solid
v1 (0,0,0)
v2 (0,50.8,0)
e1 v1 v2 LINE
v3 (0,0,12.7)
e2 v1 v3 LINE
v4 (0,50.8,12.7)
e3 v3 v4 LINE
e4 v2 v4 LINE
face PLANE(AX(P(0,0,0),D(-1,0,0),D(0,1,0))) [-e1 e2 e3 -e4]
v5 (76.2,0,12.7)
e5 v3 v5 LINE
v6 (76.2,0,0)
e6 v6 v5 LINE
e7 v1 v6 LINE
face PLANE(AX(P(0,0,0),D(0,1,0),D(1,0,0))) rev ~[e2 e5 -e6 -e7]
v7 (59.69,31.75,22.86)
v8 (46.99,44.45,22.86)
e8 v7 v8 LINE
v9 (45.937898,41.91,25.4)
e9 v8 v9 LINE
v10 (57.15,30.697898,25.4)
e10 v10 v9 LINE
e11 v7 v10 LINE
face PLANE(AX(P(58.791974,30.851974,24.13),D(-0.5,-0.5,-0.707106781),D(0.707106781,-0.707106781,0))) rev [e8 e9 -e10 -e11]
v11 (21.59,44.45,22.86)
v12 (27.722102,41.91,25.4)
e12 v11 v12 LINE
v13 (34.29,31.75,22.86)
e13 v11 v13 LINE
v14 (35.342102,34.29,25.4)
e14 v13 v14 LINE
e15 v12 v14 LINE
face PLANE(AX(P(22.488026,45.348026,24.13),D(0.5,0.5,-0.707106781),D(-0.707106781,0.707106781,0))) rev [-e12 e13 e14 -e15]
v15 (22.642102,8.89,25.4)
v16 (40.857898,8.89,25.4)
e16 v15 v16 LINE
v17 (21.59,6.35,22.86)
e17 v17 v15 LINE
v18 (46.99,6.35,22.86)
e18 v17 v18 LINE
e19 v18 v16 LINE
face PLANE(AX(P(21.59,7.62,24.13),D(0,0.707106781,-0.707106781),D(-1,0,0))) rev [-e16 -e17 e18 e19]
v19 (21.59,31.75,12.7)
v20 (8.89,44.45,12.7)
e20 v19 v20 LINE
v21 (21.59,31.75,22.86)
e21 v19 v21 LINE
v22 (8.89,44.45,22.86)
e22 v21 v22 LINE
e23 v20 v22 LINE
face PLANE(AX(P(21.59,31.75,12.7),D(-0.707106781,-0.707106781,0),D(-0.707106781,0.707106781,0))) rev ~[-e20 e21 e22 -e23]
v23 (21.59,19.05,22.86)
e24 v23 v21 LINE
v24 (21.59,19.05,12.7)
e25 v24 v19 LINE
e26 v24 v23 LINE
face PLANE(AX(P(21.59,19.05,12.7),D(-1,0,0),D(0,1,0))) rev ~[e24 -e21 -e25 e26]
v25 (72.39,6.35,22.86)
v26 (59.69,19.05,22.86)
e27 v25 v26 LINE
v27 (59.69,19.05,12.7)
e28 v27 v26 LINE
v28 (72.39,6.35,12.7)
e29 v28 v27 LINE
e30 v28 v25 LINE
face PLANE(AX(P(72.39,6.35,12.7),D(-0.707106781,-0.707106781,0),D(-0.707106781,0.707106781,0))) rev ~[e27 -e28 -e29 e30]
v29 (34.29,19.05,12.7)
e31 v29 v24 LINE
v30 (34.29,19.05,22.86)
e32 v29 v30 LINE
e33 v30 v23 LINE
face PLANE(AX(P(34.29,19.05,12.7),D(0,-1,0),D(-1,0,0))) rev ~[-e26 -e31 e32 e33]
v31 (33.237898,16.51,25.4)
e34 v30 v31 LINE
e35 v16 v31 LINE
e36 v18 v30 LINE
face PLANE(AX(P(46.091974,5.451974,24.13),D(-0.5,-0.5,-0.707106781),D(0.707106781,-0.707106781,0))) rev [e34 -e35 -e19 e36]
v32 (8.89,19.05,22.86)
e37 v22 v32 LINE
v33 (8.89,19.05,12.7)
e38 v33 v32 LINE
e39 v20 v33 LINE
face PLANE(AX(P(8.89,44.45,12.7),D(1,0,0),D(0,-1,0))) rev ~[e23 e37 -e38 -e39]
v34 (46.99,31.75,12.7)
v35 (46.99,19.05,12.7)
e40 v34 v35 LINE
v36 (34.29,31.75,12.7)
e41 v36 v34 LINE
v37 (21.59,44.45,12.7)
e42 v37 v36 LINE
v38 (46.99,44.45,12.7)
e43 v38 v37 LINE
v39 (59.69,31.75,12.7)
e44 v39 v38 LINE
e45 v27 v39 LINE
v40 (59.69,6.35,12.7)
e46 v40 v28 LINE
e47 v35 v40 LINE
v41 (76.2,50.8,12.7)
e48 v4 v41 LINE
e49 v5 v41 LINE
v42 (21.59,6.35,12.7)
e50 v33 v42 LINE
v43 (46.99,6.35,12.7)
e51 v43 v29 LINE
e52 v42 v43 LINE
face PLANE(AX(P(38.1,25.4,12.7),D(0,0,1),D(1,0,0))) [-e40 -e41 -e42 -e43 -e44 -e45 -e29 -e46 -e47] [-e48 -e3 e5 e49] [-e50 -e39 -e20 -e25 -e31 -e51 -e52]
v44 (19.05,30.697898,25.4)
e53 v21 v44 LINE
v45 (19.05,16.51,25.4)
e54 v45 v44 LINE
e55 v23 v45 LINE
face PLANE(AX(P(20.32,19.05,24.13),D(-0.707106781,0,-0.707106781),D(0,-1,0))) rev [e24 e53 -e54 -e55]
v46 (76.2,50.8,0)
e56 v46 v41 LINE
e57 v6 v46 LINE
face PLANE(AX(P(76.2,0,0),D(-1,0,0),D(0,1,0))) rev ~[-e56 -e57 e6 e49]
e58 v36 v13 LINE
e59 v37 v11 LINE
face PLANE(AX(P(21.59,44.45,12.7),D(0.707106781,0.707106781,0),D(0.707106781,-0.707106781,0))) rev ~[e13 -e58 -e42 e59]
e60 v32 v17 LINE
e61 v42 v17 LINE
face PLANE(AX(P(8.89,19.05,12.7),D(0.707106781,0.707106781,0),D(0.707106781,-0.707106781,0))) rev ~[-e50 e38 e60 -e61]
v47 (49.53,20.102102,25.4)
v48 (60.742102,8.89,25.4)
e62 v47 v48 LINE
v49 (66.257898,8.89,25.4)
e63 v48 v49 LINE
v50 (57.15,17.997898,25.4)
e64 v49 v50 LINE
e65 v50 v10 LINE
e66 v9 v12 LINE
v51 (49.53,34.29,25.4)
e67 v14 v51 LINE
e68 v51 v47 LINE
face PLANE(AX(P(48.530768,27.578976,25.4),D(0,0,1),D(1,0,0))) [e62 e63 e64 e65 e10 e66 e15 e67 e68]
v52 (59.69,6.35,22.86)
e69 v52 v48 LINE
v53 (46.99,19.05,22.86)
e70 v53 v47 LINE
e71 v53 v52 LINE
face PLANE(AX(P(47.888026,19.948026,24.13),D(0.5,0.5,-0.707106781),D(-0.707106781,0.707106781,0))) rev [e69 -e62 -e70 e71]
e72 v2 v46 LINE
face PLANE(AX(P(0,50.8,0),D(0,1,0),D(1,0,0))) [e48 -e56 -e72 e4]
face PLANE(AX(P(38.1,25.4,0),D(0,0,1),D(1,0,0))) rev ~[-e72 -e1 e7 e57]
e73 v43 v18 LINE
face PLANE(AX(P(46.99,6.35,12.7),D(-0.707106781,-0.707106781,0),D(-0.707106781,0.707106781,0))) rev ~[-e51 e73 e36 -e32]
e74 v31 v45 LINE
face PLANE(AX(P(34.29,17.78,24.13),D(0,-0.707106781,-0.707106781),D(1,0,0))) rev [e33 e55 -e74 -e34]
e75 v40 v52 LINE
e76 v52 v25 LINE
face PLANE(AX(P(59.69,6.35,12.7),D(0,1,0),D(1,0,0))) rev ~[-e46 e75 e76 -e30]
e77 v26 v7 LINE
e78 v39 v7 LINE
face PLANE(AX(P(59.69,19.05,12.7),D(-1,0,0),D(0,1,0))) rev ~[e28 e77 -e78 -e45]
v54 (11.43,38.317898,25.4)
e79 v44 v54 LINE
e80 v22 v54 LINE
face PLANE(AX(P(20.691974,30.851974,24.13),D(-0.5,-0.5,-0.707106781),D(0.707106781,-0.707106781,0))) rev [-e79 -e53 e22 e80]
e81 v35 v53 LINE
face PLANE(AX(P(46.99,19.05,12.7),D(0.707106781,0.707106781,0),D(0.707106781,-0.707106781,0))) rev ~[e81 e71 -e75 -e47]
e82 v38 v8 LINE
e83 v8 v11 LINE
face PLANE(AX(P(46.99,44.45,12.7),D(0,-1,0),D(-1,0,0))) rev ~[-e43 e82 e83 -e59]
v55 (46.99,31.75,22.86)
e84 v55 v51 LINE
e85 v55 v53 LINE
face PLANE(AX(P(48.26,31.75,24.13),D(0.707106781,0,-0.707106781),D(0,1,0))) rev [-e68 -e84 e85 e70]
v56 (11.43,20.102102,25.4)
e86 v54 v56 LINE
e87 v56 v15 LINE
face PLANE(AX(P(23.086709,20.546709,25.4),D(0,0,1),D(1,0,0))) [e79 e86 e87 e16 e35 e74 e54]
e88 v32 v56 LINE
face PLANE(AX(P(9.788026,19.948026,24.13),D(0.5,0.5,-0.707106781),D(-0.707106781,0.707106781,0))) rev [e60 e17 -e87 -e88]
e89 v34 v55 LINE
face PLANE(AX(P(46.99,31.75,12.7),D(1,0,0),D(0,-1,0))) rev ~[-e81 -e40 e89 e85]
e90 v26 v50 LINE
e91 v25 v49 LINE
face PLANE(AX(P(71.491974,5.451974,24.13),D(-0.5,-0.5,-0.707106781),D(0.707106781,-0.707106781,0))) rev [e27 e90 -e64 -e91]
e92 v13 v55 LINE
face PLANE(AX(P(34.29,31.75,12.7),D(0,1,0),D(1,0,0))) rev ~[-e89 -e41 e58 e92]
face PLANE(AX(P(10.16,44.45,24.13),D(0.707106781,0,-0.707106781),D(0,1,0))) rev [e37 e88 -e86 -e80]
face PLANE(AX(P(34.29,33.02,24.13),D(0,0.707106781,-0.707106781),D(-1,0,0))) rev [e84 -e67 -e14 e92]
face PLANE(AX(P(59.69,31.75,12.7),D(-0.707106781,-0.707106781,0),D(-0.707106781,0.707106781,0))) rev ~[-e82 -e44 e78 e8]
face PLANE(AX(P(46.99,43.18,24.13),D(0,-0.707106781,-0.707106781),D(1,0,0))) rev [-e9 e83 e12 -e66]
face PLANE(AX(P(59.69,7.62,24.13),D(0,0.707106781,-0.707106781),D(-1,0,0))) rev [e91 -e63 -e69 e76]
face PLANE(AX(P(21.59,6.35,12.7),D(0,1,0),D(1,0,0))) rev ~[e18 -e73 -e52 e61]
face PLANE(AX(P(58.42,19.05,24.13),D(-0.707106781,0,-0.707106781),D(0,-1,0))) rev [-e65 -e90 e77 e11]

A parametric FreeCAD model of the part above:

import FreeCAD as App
import Part
import Sketcher
from FreeCAD import Vector
Q = App.Units.Quantity


def edges_at(feature, points):
    """Names of the edges that pass closest to the given points."""
    edges = feature.Shape.Edges
    near = lambda p: min(range(len(edges)), key=lambda i: edges[i].distToShape(Part.Vertex(*p))[0])
    return sorted({f"Edge{near(p) + 1}" for p in points})

doc = App.newDocument("Part")
body = doc.addObject("PartDesign::Body", "Body")

sketch1 = doc.addObject("Sketcher::SketchObject", "Sketch")
body.addObject(sketch1)
sketch1.AttachmentSupport = (doc.XY_Plane, [""])
sketch1.MapMode = "FlatFace"
sketch1.addGeometry([
    Part.LineSegment(Vector(0, 51, 0), Vector(0, 0, 0)),
    Part.LineSegment(Vector(0, 0, 0), Vector(76, 0, 0)),
    Part.LineSegment(Vector(76, 0, 0), Vector(76, 51, 0)),
    Part.LineSegment(Vector(76, 51, 0), Vector(0, 51, 0)),
], False)
sketch1.addConstraint([
    Sketcher.Constraint("Coincident", 0, 2, 1, 1),
    Sketcher.Constraint("Coincident", 1, 2, 2, 1),
    Sketcher.Constraint("Coincident", 2, 2, 3, 1),
    Sketcher.Constraint("Coincident", 3, 2, 0, 1),
    Sketcher.Constraint("Vertical", 0),
    Sketcher.Constraint("Horizontal", 1),
    Sketcher.Constraint("Vertical", 2),
    Sketcher.Constraint("Horizontal", 3),
    Sketcher.Constraint("Coincident", 0, 2, -1, 1),
    Sketcher.Constraint("DistanceX", 1, 1, 1, 2, Q("3 in")),
    Sketcher.Constraint("DistanceY", 0, 2, 0, 1, Q("2 in")),
])
pad1 = doc.addObject("PartDesign::Pad", "Pad")
body.addObject(pad1)
pad1.Profile = sketch1
pad1.Length = Q("1 in")

sketch2 = doc.addObject("Sketcher::SketchObject", "Sketch001")
body.addObject(sketch2)
sketch2.AttachmentSupport = (doc.XY_Plane, [""])
sketch2.MapMode = "FlatFace"
sketch2.AttachmentOffset = App.Placement(Vector(0, 0, 1 * 25.4), App.Rotation())
sketch2.addGeometry([
    Part.LineSegment(Vector(0, 51, 0), Vector(0, 0, 0)),
    Part.LineSegment(Vector(0, 0, 0), Vector(76, 0, 0)),
    Part.LineSegment(Vector(76, 0, 0), Vector(76, 51, 0)),
    Part.LineSegment(Vector(76, 51, 0), Vector(0, 51, 0)),
], False)
sketch2.addConstraint([
    Sketcher.Constraint("Coincident", 0, 2, 1, 1),
    Sketcher.Constraint("Coincident", 1, 2, 2, 1),
    Sketcher.Constraint("Coincident", 2, 2, 3, 1),
    Sketcher.Constraint("Coincident", 3, 2, 0, 1),
    Sketcher.Constraint("Vertical", 0),
    Sketcher.Constraint("Horizontal", 1),
    Sketcher.Constraint("Vertical", 2),
    Sketcher.Constraint("Horizontal", 3),
    Sketcher.Constraint("Coincident", 0, 2, -1, 1),
    Sketcher.Constraint("DistanceX", 1, 1, 1, 2, Q("3 in")),
    Sketcher.Constraint("DistanceY", 0, 2, 0, 1, Q("2 in")),
])
pocket1 = doc.addObject("PartDesign::Pocket", "Pocket")
body.addObject(pocket1)
pocket1.Profile = sketch2
pocket1.Length = Q("0.5 in")

sketch3 = doc.addObject("Sketcher::SketchObject", "Sketch002")
body.addObject(sketch3)
sketch3.AttachmentSupport = (doc.XY_Plane, [""])
sketch3.MapMode = "FlatFace"
sketch3.AttachmentOffset = App.Placement(Vector(0, 0, 0.5 * 25.4), App.Rotation())
sketch3.addGeometry([
    Part.LineSegment(Vector(22, 32, 0), Vector(9, 44, 0)),
    Part.LineSegment(Vector(9, 44, 0), Vector(9, 19, 0)),
    Part.LineSegment(Vector(9, 19, 0), Vector(22, 6, 0)),
    Part.LineSegment(Vector(22, 6, 0), Vector(47, 6, 0)),
    Part.LineSegment(Vector(47, 6, 0), Vector(34, 19, 0)),
    Part.LineSegment(Vector(34, 19, 0), Vector(22, 19, 0)),
    Part.LineSegment(Vector(22, 19, 0), Vector(22, 32, 0)),
    Part.LineSegment(Vector(47, 19, 0), Vector(60, 6, 0)),
    Part.LineSegment(Vector(60, 6, 0), Vector(72, 6, 0)),
    Part.LineSegment(Vector(72, 6, 0), Vector(60, 19, 0)),
    Part.LineSegment(Vector(60, 19, 0), Vector(60, 32, 0)),
    Part.LineSegment(Vector(60, 32, 0), Vector(47, 44, 0)),
    Part.LineSegment(Vector(47, 44, 0), Vector(22, 44, 0)),
    Part.LineSegment(Vector(22, 44, 0), Vector(34, 32, 0)),
    Part.LineSegment(Vector(34, 32, 0), Vector(47, 32, 0)),
    Part.LineSegment(Vector(47, 32, 0), Vector(47, 19, 0)),
], False)
sketch3.addConstraint([
    Sketcher.Constraint("Coincident", 0, 2, 1, 1),
    Sketcher.Constraint("Coincident", 1, 2, 2, 1),
    Sketcher.Constraint("Coincident", 2, 2, 3, 1),
    Sketcher.Constraint("Coincident", 3, 2, 4, 1),
    Sketcher.Constraint("Coincident", 4, 2, 5, 1),
    Sketcher.Constraint("Coincident", 5, 2, 6, 1),
    Sketcher.Constraint("Coincident", 6, 2, 0, 1),
    Sketcher.Constraint("Coincident", 7, 2, 8, 1),
    Sketcher.Constraint("Coincident", 8, 2, 9, 1),
    Sketcher.Constraint("Coincident", 9, 2, 10, 1),
    Sketcher.Constraint("Coincident", 10, 2, 11, 1),
    Sketcher.Constraint("Coincident", 11, 2, 12, 1),
    Sketcher.Constraint("Coincident", 12, 2, 13, 1),
    Sketcher.Constraint("Coincident", 13, 2, 14, 1),
    Sketcher.Constraint("Coincident", 14, 2, 15, 1),
    Sketcher.Constraint("Coincident", 15, 2, 7, 1),
    Sketcher.Constraint("Vertical", 1),
    Sketcher.Constraint("Horizontal", 3),
    Sketcher.Constraint("Horizontal", 5),
    Sketcher.Constraint("Vertical", 6),
    Sketcher.Constraint("Horizontal", 8),
    Sketcher.Constraint("Vertical", 10),
    Sketcher.Constraint("Horizontal", 12),
    Sketcher.Constraint("Horizontal", 14),
    Sketcher.Constraint("Vertical", 15),
    Sketcher.Constraint("Parallel", 0, 2),
    Sketcher.Constraint("Parallel", 2, 4),
    Sketcher.Constraint("Parallel", 4, 7),
    Sketcher.Constraint("Parallel", 7, 9),
    Sketcher.Constraint("Parallel", 9, 11),
    Sketcher.Constraint("Parallel", 11, 13),
    Sketcher.Constraint("Horizontal", 1, 2, 4, 2),
    Sketcher.Constraint("Horizontal", 3, 2, 7, 2),
    Sketcher.Constraint("Horizontal", 5, 2, 9, 2),
    Sketcher.Constraint("Horizontal", 6, 2, 10, 2),
    Sketcher.Constraint("Horizontal", 0, 2, 11, 2),
    Sketcher.Constraint("Horizontal", 10, 2, 13, 2),
    Sketcher.Constraint("Horizontal", 9, 2, 15, 2),
    Sketcher.Constraint("Vertical", 2, 2, 5, 2),
    Sketcher.Constraint("Vertical", 7, 2, 9, 2),
    Sketcher.Constraint("Vertical", 3, 2, 11, 2),
    Sketcher.Constraint("Vertical", 6, 2, 12, 2),
    Sketcher.Constraint("Vertical", 4, 2, 13, 2),
    Sketcher.Constraint("Equal", 12, 1),
    Sketcher.Constraint("Equal", 14, 6),
    Sketcher.Constraint("DistanceX", 3, 1, 3, 2, Q("1 in")),
    Sketcher.Constraint("DistanceX", -1, 1, 0, 2, Q("0.35 in")),
    Sketcher.Constraint("DistanceY", -1, 1, 0, 2, Q("1.75 in")),
])
pad2 = doc.addObject("PartDesign::Pad", "Pad001")
body.addObject(pad2)
pad2.Profile = sketch3
pad2.Length = Q("0.5 in")
doc.recompute()

chamfer = doc.addObject("PartDesign::Chamfer", "Chamfer")
body.addObject(chamfer)
chamfer.Base = (pad2, edges_at(pad2, [
    (15.24, 12.7, 25.4),
    (8.89, 31.75, 25.4),
    (15.24, 38.1, 25.4),
    (21.59, 25.4, 25.4),
    (27.94, 19.05, 25.4),
    (40.64, 12.7, 25.4),
    (34.29, 6.35, 25.4),
    (53.34, 12.7, 25.4),
    (66.04, 12.7, 25.4),
    (66.04, 6.35, 25.4),
    (46.99, 25.4, 25.4),
    (53.34, 38.1, 25.4),
    (27.94, 38.1, 25.4),
    (34.29, 44.45, 25.4),
    (40.64, 31.75, 25.4),
    (59.69, 25.4, 25.4),
]))
chamfer.Size = Q("0.1 in")

doc.recompute()
